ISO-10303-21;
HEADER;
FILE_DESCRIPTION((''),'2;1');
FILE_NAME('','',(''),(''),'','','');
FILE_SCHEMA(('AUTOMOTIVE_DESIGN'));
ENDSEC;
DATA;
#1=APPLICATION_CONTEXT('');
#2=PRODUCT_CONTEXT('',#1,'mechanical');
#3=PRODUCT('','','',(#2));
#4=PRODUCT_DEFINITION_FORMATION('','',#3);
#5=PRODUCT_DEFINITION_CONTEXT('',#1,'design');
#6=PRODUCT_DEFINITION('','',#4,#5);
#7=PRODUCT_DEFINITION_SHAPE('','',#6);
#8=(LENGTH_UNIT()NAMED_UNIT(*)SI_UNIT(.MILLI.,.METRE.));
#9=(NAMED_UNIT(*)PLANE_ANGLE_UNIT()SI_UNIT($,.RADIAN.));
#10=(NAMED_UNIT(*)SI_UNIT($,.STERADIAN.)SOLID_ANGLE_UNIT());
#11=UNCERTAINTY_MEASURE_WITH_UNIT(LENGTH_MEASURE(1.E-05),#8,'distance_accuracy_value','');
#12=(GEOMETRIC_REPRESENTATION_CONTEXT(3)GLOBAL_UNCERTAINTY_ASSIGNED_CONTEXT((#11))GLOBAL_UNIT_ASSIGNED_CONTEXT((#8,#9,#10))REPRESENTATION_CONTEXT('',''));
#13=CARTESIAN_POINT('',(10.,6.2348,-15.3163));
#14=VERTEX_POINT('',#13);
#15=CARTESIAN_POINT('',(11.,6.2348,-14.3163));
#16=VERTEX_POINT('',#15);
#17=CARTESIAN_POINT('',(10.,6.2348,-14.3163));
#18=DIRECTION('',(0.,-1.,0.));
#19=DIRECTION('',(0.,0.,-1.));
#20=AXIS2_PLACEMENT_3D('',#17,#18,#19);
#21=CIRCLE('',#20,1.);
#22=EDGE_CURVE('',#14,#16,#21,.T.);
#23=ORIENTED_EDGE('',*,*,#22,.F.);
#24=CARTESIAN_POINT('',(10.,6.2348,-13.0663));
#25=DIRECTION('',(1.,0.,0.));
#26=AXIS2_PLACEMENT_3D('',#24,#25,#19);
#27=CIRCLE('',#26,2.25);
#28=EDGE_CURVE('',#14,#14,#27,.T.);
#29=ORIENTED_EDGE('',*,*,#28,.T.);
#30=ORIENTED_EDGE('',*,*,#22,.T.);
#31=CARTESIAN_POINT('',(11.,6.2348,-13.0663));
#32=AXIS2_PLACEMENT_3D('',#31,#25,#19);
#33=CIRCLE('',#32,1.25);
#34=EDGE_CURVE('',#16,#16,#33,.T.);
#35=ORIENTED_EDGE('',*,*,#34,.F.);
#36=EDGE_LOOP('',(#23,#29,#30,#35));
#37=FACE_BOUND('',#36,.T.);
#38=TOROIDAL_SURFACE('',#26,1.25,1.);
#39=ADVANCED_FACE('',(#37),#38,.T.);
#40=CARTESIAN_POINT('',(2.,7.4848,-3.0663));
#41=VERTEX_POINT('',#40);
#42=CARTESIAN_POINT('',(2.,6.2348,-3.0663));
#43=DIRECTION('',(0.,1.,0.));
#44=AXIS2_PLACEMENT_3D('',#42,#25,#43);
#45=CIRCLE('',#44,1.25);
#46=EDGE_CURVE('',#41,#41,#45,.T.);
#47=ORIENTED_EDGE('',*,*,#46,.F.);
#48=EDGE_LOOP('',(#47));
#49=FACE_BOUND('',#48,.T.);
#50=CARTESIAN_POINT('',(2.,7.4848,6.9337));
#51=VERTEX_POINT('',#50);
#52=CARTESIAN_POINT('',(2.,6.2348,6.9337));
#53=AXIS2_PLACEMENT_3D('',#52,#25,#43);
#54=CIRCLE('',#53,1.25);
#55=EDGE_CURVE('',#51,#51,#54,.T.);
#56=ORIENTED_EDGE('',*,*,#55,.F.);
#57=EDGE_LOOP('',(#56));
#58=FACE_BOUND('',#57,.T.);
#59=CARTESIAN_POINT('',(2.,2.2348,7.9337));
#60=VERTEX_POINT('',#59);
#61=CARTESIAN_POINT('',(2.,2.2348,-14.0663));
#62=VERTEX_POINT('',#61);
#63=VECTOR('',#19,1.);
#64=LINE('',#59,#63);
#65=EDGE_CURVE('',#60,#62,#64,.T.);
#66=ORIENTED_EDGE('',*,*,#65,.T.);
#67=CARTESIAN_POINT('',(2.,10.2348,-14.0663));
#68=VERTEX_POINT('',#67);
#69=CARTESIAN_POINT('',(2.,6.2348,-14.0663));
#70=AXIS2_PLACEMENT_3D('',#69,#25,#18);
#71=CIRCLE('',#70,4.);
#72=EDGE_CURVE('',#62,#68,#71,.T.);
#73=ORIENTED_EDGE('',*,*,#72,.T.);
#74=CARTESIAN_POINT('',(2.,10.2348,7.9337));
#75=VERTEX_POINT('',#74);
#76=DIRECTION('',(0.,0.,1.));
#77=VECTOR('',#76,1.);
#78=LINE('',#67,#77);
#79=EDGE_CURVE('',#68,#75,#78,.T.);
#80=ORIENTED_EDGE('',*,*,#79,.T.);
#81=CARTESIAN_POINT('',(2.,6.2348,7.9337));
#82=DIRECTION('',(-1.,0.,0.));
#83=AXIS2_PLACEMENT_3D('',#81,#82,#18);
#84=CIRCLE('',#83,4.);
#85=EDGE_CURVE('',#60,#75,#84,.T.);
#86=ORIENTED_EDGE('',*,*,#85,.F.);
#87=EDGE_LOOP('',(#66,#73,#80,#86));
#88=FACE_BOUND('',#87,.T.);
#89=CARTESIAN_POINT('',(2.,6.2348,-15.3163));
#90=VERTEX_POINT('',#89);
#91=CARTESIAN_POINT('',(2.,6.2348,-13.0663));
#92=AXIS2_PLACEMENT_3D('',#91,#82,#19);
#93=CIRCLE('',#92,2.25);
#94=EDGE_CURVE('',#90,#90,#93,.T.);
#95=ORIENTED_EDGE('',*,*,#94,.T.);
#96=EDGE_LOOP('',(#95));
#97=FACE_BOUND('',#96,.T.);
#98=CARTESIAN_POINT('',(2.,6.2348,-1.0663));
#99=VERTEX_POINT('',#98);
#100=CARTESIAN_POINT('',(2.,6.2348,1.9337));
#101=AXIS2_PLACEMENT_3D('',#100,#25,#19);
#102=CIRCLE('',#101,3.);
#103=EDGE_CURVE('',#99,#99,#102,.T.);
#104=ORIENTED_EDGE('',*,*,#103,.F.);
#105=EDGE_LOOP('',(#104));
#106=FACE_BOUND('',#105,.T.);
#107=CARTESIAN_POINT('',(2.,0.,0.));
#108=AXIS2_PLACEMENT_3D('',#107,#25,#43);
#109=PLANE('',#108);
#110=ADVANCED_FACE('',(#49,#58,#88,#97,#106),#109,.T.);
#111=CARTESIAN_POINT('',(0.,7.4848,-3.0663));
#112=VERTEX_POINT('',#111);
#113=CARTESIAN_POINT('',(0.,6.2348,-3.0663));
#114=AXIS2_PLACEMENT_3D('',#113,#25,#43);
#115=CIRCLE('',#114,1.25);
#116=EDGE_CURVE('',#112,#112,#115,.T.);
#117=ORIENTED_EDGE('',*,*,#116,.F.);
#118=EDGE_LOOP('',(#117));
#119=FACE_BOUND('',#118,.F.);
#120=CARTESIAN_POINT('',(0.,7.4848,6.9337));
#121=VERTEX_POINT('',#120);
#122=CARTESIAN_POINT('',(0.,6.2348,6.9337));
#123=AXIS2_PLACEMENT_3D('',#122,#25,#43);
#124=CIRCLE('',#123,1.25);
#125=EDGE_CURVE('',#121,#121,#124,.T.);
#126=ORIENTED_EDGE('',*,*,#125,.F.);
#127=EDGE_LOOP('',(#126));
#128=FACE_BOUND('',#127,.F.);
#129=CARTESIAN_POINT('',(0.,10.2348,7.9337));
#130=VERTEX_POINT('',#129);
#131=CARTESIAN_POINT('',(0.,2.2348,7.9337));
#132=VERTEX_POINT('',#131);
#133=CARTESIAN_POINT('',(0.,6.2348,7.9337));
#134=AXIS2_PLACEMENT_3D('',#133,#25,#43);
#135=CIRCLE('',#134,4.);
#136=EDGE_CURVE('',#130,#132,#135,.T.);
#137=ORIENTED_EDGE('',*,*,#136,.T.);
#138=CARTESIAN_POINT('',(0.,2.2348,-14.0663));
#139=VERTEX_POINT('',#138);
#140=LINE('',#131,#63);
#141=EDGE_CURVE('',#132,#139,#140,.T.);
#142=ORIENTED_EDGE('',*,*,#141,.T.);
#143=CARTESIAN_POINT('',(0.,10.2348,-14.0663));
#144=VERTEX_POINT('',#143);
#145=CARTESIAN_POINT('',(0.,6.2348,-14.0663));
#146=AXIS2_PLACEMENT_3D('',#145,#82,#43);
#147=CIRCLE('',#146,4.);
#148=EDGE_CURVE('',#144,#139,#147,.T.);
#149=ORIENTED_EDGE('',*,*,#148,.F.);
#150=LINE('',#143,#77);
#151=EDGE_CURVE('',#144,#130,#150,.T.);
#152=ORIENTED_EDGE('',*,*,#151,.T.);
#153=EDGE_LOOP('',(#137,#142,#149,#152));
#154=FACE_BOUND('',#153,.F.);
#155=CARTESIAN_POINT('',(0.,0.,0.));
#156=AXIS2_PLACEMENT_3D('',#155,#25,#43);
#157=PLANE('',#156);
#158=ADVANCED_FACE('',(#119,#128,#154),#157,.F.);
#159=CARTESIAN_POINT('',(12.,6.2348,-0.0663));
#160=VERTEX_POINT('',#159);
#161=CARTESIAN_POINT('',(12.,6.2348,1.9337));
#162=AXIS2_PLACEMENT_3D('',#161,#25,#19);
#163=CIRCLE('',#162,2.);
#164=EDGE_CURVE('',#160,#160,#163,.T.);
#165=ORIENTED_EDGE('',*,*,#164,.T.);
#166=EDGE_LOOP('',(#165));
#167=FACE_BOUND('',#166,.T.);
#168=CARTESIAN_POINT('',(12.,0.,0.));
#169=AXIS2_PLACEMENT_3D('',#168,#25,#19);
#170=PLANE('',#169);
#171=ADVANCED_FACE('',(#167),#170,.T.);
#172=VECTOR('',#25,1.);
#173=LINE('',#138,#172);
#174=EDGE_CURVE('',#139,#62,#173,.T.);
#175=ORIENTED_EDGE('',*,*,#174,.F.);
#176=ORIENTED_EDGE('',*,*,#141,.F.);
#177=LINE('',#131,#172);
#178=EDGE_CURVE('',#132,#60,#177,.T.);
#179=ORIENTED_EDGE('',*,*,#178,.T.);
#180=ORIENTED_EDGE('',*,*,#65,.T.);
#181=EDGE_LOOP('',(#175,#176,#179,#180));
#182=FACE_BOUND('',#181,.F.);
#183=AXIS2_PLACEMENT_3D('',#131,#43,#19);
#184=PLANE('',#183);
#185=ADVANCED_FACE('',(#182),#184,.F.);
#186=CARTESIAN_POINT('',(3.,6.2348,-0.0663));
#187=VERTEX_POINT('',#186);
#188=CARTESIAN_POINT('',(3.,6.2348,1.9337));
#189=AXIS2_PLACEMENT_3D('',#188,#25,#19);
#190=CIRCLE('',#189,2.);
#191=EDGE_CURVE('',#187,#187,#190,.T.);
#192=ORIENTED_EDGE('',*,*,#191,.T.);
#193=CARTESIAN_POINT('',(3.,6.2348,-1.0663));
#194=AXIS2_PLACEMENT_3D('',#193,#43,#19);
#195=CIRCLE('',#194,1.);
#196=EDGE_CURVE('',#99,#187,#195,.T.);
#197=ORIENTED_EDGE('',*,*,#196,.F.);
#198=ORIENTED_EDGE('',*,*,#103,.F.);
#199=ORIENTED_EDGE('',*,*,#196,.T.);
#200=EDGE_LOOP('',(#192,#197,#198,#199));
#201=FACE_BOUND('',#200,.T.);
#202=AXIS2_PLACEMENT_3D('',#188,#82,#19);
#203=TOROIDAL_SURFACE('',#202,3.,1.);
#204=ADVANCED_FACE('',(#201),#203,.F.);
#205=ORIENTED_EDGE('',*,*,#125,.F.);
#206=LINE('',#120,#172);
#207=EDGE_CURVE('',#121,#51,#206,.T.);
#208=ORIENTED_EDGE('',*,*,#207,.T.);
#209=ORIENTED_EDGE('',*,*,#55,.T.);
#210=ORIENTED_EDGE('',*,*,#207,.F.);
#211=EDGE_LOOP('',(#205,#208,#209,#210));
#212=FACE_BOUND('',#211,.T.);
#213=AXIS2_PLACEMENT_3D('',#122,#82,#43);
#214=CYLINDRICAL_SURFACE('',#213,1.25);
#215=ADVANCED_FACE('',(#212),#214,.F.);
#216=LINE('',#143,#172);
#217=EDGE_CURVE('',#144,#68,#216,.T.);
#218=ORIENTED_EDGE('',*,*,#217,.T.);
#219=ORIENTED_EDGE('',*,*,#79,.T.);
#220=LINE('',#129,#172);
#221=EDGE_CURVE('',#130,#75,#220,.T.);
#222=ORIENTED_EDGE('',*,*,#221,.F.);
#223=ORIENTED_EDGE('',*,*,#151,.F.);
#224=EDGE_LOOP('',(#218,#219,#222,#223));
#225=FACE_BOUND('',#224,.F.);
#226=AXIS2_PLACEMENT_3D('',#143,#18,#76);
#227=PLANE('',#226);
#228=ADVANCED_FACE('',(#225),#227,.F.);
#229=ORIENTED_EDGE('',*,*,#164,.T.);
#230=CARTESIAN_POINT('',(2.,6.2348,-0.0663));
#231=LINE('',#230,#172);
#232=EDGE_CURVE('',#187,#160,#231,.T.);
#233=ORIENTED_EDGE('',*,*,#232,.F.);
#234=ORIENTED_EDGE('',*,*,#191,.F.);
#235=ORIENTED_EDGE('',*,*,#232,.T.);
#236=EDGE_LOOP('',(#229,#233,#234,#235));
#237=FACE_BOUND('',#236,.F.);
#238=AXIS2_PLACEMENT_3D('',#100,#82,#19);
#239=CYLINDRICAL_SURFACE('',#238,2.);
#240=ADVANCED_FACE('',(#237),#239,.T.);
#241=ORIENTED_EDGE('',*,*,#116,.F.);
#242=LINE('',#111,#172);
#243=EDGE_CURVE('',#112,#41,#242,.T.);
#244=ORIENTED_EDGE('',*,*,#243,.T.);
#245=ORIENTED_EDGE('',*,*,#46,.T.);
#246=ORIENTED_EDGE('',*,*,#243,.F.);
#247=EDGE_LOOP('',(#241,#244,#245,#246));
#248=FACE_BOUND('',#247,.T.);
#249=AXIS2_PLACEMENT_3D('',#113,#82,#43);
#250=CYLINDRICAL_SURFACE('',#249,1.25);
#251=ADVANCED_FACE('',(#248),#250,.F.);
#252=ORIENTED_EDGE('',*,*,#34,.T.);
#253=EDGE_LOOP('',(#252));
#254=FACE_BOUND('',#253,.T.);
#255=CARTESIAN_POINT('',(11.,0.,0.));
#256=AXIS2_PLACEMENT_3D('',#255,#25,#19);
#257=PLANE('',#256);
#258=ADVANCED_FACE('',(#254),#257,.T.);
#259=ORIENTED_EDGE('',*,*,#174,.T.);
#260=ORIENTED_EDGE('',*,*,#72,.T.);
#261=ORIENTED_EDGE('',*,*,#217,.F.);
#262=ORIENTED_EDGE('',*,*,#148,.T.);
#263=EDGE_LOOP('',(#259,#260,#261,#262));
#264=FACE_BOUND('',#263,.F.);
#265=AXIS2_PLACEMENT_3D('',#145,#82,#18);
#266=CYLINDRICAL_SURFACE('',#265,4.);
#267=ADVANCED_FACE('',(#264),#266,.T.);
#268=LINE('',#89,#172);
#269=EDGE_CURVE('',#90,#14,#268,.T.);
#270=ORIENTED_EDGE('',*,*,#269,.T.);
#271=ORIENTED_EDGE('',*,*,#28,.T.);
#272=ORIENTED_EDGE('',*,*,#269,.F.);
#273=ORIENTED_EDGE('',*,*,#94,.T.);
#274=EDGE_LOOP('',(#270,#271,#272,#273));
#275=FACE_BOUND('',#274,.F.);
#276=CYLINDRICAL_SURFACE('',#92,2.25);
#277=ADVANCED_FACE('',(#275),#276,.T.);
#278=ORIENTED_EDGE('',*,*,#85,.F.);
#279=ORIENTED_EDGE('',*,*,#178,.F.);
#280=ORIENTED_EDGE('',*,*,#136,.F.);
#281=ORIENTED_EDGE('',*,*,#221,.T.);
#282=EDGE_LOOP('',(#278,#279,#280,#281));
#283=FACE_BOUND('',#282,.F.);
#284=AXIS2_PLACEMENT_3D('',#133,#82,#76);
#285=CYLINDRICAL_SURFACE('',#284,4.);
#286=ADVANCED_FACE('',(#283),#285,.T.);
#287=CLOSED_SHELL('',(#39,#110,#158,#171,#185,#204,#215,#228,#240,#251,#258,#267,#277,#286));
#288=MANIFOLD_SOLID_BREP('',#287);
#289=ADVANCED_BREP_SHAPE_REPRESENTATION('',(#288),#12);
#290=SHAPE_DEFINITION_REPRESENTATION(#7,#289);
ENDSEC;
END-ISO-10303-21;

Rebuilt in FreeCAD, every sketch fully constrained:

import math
import FreeCAD as App
import Part
import Sketcher
from FreeCAD import Vector


def edges_at(feature, points):
    """Names of the edges that pass closest to the given points."""
    edges = feature.Shape.Edges
    near = lambda p: min(range(len(edges)), key=lambda i: edges[i].distToShape(Part.Vertex(*p))[0])
    return sorted({f"Edge{near(p) + 1}" for p in points})

doc = App.newDocument("Part")
body = doc.addObject("PartDesign::Body", "Body")

# Sketch on YZ plane
sketch1 = doc.addObject("Sketcher::SketchObject", "Sketch")
body.addObject(sketch1)
sketch1.AttachmentSupport = (doc.YZ_Plane, [""])
sketch1.MapMode = "FlatFace"
sketch1.addGeometry([
    Part.ArcOfCircle(Part.Circle(Vector(6.2, 7.9, 0), Vector(0, 0, 1), 4), math.radians(0), math.radians(180)),  # 0
    Part.LineSegment(Vector(2.2, 7.9, 0), Vector(2.2, -14.1, 0)),  # 1
    Part.ArcOfCircle(Part.Circle(Vector(6.2, -14.1, 0), Vector(0, 0, 1), 4), math.radians(180), math.radians(360)),  # 2
    Part.LineSegment(Vector(10.2, -14.1, 0), Vector(10.2, 7.9, 0)),  # 3
    Part.Circle(Vector(6.2, -13.1, 0), Vector(0, 0, 1), 2.2),  # 4
    Part.Circle(Vector(6.2, -3.1, 0), Vector(0, 0, 1), 1.2),  # 5
    Part.Circle(Vector(6.2, 6.9, 0), Vector(0, 0, 1), 1.2),  # 6
], False)
sketch1.addConstraint([
    Sketcher.Constraint("Tangent", 0, 2, 1, 1),
    Sketcher.Constraint("Tangent", 1, 2, 2, 1),
    Sketcher.Constraint("Tangent", 2, 2, 3, 1),
    Sketcher.Constraint("Tangent", 3, 2, 0, 1),
    Sketcher.Constraint("Vertical", 1),
    Sketcher.Constraint("Vertical", 3),
    Sketcher.Constraint("Equal", 5, 6),
    Sketcher.Constraint("Vertical", 2, 3, 4, 3),
    Sketcher.Constraint("Vertical", 4, 3, 5, 3),
    Sketcher.Constraint("Vertical", 5, 3, 6, 3),
    Sketcher.Constraint("Radius", 0, 4.0),
    Sketcher.Constraint("Diameter", 4, 4.5),
    Sketcher.Constraint("Diameter", 5, 2.5),
    Sketcher.Constraint("DistanceY", 4, 3, 5, 3, 10.0),
    Sketcher.Constraint("DistanceY", 5, 3, 6, 3, 10.0),
    Sketcher.Constraint("DistanceY", 1, 2, 1, 1, 22.0),
    Sketcher.Constraint("DistanceY", 2, 3, 4, 3, 1.0),
    Sketcher.Constraint("DistanceX", -1, 1, 0, 3, 6.2348),
    Sketcher.Constraint("DistanceY", -1, 1, 0, 3, 7.9337),
])
pad1 = doc.addObject("PartDesign::Pad", "Pad")
body.addObject(pad1)
pad1.Profile = sketch1
pad1.Length = 2

# Sketch on YZ plane
sketch2 = doc.addObject("Sketcher::SketchObject", "Sketch001")
body.addObject(sketch2)
sketch2.AttachmentSupport = (doc.YZ_Plane, [""])
sketch2.MapMode = "FlatFace"
sketch2.AttachmentOffset = App.Placement(Vector(0, 0, 2), App.Rotation())
sketch2.addGeometry(Part.Circle(Vector(6.2, 1.9, 0), Vector(0, 0, 1), 2), False)
sketch2.addConstraint([
    Sketcher.Constraint("Diameter", 0, 4.0),
    Sketcher.Constraint("DistanceX", -1, 1, 0, 3, 6.2348),
    Sketcher.Constraint("DistanceY", -1, 1, 0, 3, 1.9337),
])
pad2 = doc.addObject("PartDesign::Pad", "Pad001")
body.addObject(pad2)
pad2.Profile = sketch2
pad2.Length = 10
doc.recompute()

fillet = doc.addObject("PartDesign::Fillet", "Fillet")
body.addObject(fillet)
fillet.Base = (pad2, edges_at(pad2, [(2, 6.235, 3.934)]))
fillet.Radius = 1

# Sketch on YZ plane
sketch3 = doc.addObject("Sketcher::SketchObject", "Sketch002")
body.addObject(sketch3)
sketch3.AttachmentSupport = (doc.YZ_Plane, [""])
sketch3.MapMode = "FlatFace"
sketch3.AttachmentOffset = App.Placement(Vector(0, 0, 2), App.Rotation())
sketch3.addGeometry(Part.Circle(Vector(6.2, -13.1, 0), Vector(0, 0, 1), 2.2), False)
sketch3.addConstraint([
    Sketcher.Constraint("Diameter", 0, 4.5),
    Sketcher.Constraint("DistanceX", -1, 1, 0, 3, 6.2348),
    Sketcher.Constraint("DistanceY", 0, 3, -1, 1, 13.0663),
])
pad3 = doc.addObject("PartDesign::Pad", "Pad002")
body.addObject(pad3)
pad3.Profile = sketch3
pad3.Type = "TwoLengths"
pad3.Length = 9
pad3.Length2 = 2
doc.recompute()

fillet2 = doc.addObject("PartDesign::Fillet", "Fillet001")
body.addObject(fillet2)
fillet2.Base = (pad3, edges_at(pad3, [(11, 6.235, -10.816)]))
fillet2.Radius = 1

doc.recompute()
